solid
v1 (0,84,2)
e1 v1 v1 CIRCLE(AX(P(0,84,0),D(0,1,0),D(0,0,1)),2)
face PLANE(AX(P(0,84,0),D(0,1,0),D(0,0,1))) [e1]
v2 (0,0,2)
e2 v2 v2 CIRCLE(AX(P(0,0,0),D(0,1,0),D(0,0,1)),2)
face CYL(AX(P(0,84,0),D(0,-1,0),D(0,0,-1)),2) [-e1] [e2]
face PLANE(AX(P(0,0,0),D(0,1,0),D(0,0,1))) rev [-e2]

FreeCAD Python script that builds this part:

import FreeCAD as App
import Part
import Sketcher

V = App.Vector
Q = App.Units.Quantity

doc = App.newDocument("Part")
params = doc.addObject("Spreadsheet::Sheet", "Params")
for row, (alias, value) in enumerate([
    ("sketch1_diameter", "4 mm"),
    ("pad1_length", "84 mm"),
], start=1):
    params.set(f"A{row}", alias)
    params.set(f"B{row}", "=" + value)
    params.setAlias(f"B{row}", alias)

body = doc.addObject("PartDesign::Body", "Body")

# Sketch on XZ plane
sketch1 = doc.addObject("Sketcher::SketchObject", "Sketch")
body.addObject(sketch1)
sketch1.AttachmentSupport = (doc.XZ_Plane, [""])
sketch1.MapMode = "FlatFace"
sketch1.addGeometry(Part.Circle(V(0, 0, 0), V(0, 0, 1), 2), False)
sketch1.addConstraint([
    Sketcher.Constraint("Coincident", 0, 3, -1, 1),
    Sketcher.Constraint("Diameter", 0, Q("4 mm")),
])
sketch1.setExpression("Constraints[1]", "Params.sketch1_diameter")
pad1 = doc.addObject("PartDesign::Pad", "Pad")
body.addObject(pad1)
pad1.Profile = sketch1
pad1.setExpression("Length", "Params.pad1_length")
pad1.Reversed = True

doc.recompute()
